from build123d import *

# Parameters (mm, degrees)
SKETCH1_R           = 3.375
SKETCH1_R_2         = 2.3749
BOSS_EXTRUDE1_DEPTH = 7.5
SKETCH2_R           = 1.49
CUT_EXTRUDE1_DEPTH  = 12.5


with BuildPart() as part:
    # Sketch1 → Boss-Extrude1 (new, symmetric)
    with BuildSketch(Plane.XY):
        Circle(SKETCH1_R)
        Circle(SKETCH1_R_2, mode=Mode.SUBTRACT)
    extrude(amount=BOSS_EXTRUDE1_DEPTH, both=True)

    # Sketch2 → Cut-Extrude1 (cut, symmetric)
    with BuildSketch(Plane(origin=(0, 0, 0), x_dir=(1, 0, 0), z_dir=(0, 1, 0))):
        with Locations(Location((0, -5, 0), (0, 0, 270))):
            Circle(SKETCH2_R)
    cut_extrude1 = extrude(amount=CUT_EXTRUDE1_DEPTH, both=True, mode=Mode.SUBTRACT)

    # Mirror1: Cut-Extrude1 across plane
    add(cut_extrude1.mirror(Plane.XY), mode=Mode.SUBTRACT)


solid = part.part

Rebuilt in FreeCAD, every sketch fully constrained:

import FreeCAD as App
import Part
import Sketcher

doc = App.newDocument("Part")
body = doc.addObject("PartDesign::Body", "Body")

sketch1 = body.newObject("Sketcher::SketchObject", "Sketch")
sketch1.AttachmentSupport = (doc.getObject("XY_Plane"), [""])
sketch1.MapMode = "FlatFace"
sketch1.addGeometry([
    Part.Circle(App.Vector(0, 0, 0), App.Vector(0, 0, 1), 3.375),
    Part.Circle(App.Vector(0, 0, 0), App.Vector(0, 0, 1), 2.3749),
], False)
sketch1.addConstraint([
    Sketcher.Constraint("Coincident", 0, 3, -1, 1),
    Sketcher.Constraint("Coincident", 1, 3, -1, 1),
    Sketcher.Constraint("Diameter", 0, 6.75),
    Sketcher.Constraint("Diameter", 1, 4.7498),
])
pad1 = body.newObject("PartDesign::Pad", "Pad")
pad1.Profile = sketch1
pad1.Length = 15
pad1.Midplane = True

sketch2 = body.newObject("Sketcher::SketchObject", "Sketch001")
sketch2.AttachmentSupport = (doc.getObject("XZ_Plane"), [""])
sketch2.MapMode = "FlatFace"
sketch2.addGeometry(Part.Circle(App.Vector(0, 5, 0), App.Vector(0, 0, 1), 1.49), False)
sketch2.addConstraint([
    Sketcher.Constraint("PointOnObject", 0, 3, -2),
    Sketcher.Constraint("Diameter", 0, 2.98),
    Sketcher.Constraint("DistanceY", -1, 1, 0, 3, 5.0),
])
pocket1 = body.newObject("PartDesign::Pocket", "Pocket")
pocket1.Profile = sketch2
pocket1.Length = 25
pocket1.Midplane = True
doc.recompute()

mirrored = body.newObject("PartDesign::Mirrored", "Mirrored")
mirrored.Originals = [pocket1]
mirrored.MirrorPlane = (doc.getObject("XY_Plane"), [""])
body.Tip = mirrored

doc.recompute()
